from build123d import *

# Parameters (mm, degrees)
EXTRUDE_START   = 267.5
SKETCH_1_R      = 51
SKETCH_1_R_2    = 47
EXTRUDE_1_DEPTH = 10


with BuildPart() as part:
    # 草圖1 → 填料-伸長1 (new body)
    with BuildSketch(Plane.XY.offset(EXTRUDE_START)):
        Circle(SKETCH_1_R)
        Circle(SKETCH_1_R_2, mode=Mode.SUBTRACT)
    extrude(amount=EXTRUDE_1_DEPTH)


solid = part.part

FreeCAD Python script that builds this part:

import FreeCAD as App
import Part
import Sketcher

doc = App.newDocument("Part")
body = doc.addObject("PartDesign::Body", "Body")

# Sketch on XY plane
sketch1 = body.newObject("Sketcher::SketchObject", "Sketch")
sketch1.AttachmentSupport = (doc.getObject("XY_Plane"), [""])
sketch1.MapMode = "FlatFace"
sketch1.AttachmentOffset = App.Placement(App.Vector(0, 0, 267.5), App.Rotation())
sketch1.addGeometry([
    Part.Circle(App.Vector(0, 0, 0), App.Vector(0, 0, 1), 51),
    Part.Circle(App.Vector(0, 0, 0), App.Vector(0, 0, 1), 47),
], False)
sketch1.addConstraint([
    Sketcher.Constraint("Coincident", 0, 3, -1, 1),
    Sketcher.Constraint("Coincident", 1, 3, -1, 1),
    Sketcher.Constraint("Diameter", 0, 102.0),
    Sketcher.Constraint("Diameter", 1, 94.0),
])
pad1 = body.newObject("PartDesign::Pad", "Pad")
pad1.Profile = sketch1
pad1.Length = 10

doc.recompute()
